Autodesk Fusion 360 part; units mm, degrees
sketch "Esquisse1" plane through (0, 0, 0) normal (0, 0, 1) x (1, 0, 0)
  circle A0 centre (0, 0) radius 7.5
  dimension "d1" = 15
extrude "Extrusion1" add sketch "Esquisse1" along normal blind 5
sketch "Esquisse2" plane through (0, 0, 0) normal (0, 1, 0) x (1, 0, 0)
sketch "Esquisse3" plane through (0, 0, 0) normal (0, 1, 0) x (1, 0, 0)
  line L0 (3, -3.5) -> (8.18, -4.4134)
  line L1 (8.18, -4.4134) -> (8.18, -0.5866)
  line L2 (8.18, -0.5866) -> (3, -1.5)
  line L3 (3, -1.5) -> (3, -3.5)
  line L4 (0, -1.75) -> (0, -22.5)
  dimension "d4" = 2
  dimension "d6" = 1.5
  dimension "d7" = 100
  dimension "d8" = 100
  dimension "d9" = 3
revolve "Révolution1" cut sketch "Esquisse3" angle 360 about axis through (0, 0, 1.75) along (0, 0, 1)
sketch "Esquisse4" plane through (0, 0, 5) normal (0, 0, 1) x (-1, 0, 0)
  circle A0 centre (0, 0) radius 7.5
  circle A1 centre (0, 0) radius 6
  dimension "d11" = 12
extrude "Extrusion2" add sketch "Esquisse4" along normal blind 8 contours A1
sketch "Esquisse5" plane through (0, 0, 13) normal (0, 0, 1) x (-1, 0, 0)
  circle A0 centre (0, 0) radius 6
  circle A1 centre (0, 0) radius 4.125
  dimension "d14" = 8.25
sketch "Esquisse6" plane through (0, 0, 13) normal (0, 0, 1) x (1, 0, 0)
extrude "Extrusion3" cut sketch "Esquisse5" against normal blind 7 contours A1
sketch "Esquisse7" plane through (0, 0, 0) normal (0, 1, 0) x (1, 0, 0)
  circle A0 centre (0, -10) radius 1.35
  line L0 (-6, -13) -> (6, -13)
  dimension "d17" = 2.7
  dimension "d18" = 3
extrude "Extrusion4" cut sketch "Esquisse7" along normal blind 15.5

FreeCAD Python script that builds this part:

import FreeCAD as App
import Part
import Sketcher
from FreeCAD import Vector
Q = App.Units.Quantity


def add_polygon(sketch, points):
    """Adds a closed chain of lines whose ends are joined by coincident constraints."""
    first, n = sketch.GeometryCount, len(points)
    for a, b in zip(points, points[1:] + points[:1]):
        sketch.addGeometry(Part.LineSegment(App.Vector(*a, 0), App.Vector(*b, 0)), False)
    for i in range(n):
        sketch.addConstraint(Sketcher.Constraint("Coincident", first + i, 2, first + (i + 1) % n, 1))

doc = App.newDocument("Part")
body = doc.addObject("PartDesign::Body", "Body")

sketch1 = body.newObject("Sketcher::SketchObject", "Sketch")
sketch1.AttachmentSupport = (doc.getObject("XY_Plane"), [""])
sketch1.MapMode = "FlatFace"
sketch1.addGeometry(Part.Circle(Vector(0, 0, 0), Vector(0, 0, 1), 8), False)
sketch1.addConstraint(Sketcher.Constraint("Coincident", 0, 3, -1, 1))
sketch1.addConstraint(Sketcher.Constraint("Diameter", 0, Q("15 mm")))
pad1 = body.newObject("PartDesign::Pad", "Pad")
pad1.Profile = sketch1
pad1.Length = 5

sketch2 = body.newObject("Sketcher::SketchObject", "Sketch001")
sketch2.AttachmentSupport = (doc.getObject("XZ_Plane"), [""])
sketch2.MapMode = "FlatFace"
add_polygon(sketch2, [(3, 1.5), (3, 3.5), (8.2, 4.4), (8.2, 0.6)])
sketch2.addConstraint(Sketcher.Constraint("Vertical", 0))
sketch2.addConstraint(Sketcher.Constraint("Vertical", 2))
sketch2.addConstraint(Sketcher.Constraint("Equal", 1, 3))
sketch2.addConstraint(Sketcher.Constraint("DistanceY", 0, 1, 0, 2, Q("2 mm")))
sketch2.addConstraint(Sketcher.Constraint("DistanceX", -1, 1, 0, 2, Q("3 mm")))
sketch2.addConstraint(Sketcher.Constraint("DistanceY", -1, 1, 3, 2, Q("1.5 mm")))
sketch2.addConstraint(Sketcher.Constraint("Angle", 1, Q("10.0003 deg")))
sketch2.addConstraint(Sketcher.Constraint("Distance", 1, Q("5.26 mm")))
groove = body.newObject("PartDesign::Groove", "Groove")
groove.Profile = sketch2
groove.ReferenceAxis = (sketch2, ["V_Axis"])
groove.Angle = 360

sketch3 = body.newObject("Sketcher::SketchObject", "Sketch002")
sketch3.AttachmentSupport = (doc.getObject("XY_Plane"), [""])
sketch3.MapMode = "FlatFace"
sketch3.AttachmentOffset = App.Placement(Vector(0, 0, 5), App.Rotation())
sketch3.addGeometry(Part.Circle(Vector(0, 0, 0), Vector(0, 0, 1), 6), False)
sketch3.addConstraint(Sketcher.Constraint("Coincident", 0, 3, -1, 1))
sketch3.addConstraint(Sketcher.Constraint("Diameter", 0, Q("12 mm")))
pad2 = body.newObject("PartDesign::Pad", "Pad001")
pad2.Profile = sketch3
pad2.Length = 8

sketch4 = body.newObject("Sketcher::SketchObject", "Sketch003")
sketch4.AttachmentSupport = (doc.getObject("XY_Plane"), [""])
sketch4.MapMode = "FlatFace"
sketch4.AttachmentOffset = App.Placement(Vector(0, 0, 13), App.Rotation())
sketch4.addGeometry(Part.Circle(Vector(0, 0, 0), Vector(0, 0, 1), 4.1), False)
sketch4.addConstraint(Sketcher.Constraint("Coincident", 0, 3, -1, 1))
sketch4.addConstraint(Sketcher.Constraint("Diameter", 0, Q("8.25 mm")))
pocket1 = body.newObject("PartDesign::Pocket", "Pocket")
pocket1.Profile = sketch4
pocket1.Length = 7

sketch5 = body.newObject("Sketcher::SketchObject", "Sketch004")
sketch5.AttachmentSupport = (doc.getObject("XZ_Plane"), [""])
sketch5.MapMode = "FlatFace"
sketch5.addGeometry(Part.Circle(Vector(0, 10, 0), Vector(0, 0, 1), 1.4), False)
sketch5.addConstraint(Sketcher.Constraint("PointOnObject", 0, 3, -2))
sketch5.addConstraint(Sketcher.Constraint("Diameter", 0, Q("2.7 mm")))
sketch5.addConstraint(Sketcher.Constraint("DistanceY", -1, 1, 0, 3, Q("10 mm")))
pocket2 = body.newObject("PartDesign::Pocket", "Pocket001")
pocket2.Profile = sketch5
pocket2.Length = 15.5

doc.recompute()
